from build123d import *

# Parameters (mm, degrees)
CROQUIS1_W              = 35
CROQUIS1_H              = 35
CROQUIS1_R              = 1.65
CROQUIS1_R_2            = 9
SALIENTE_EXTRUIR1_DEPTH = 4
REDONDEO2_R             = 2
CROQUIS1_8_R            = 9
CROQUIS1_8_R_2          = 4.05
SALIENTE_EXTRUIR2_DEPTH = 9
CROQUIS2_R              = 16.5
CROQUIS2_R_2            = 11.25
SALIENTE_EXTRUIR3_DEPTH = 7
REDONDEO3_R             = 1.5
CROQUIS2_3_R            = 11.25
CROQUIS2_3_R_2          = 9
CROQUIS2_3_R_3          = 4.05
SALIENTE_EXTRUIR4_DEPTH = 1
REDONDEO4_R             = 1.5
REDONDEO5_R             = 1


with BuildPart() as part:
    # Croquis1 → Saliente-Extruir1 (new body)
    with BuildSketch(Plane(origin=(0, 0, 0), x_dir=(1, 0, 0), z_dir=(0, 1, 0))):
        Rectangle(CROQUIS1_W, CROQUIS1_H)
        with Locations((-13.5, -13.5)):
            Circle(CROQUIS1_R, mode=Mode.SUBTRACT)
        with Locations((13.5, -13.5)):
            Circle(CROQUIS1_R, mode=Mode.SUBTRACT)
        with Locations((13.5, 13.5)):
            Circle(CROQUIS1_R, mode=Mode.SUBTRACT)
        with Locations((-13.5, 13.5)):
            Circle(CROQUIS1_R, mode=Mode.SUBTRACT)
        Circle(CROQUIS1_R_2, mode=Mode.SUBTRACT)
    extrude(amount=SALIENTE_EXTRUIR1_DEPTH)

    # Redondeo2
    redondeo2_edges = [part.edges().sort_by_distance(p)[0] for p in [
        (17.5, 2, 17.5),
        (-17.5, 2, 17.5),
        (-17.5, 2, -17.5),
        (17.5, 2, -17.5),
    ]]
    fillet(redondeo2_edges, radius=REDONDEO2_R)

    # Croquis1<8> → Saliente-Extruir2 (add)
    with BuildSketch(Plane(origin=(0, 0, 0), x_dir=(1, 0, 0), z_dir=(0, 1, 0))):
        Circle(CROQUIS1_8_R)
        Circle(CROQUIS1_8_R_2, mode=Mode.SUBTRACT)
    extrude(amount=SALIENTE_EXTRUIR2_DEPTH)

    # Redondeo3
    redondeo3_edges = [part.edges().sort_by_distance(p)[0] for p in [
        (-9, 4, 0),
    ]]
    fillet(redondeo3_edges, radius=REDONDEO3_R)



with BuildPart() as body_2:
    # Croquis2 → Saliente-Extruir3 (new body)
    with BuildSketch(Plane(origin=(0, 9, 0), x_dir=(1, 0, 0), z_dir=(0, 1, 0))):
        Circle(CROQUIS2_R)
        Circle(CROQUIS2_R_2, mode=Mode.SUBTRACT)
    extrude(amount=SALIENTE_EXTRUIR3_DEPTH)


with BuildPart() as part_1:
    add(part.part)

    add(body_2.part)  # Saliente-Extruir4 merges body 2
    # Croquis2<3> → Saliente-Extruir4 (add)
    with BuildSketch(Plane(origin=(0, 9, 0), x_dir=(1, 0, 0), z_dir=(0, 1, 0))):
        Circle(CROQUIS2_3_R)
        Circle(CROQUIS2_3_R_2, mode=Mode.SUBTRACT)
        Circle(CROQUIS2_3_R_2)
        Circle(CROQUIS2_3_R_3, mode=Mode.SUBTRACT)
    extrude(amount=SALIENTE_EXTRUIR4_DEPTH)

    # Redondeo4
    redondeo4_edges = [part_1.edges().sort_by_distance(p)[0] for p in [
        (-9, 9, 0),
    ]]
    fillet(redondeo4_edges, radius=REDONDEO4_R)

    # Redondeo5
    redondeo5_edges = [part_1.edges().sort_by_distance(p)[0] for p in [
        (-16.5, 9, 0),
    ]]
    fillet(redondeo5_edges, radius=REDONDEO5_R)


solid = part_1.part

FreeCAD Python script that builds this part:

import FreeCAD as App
import Part
import Sketcher


def edges_at(feature, points):
    """Names of the edges that pass closest to the given points."""
    edges = feature.Shape.Edges
    near = lambda p: min(range(len(edges)), key=lambda i: edges[i].distToShape(Part.Vertex(*p))[0])
    return sorted({f"Edge{near(p) + 1}" for p in points})


def add_polygon(sketch, points):
    """Adds a closed chain of lines whose ends are joined by coincident constraints."""
    first, n = sketch.GeometryCount, len(points)
    for a, b in zip(points, points[1:] + points[:1]):
        sketch.addGeometry(Part.LineSegment(App.Vector(*a, 0), App.Vector(*b, 0)), False)
    for i in range(n):
        sketch.addConstraint(Sketcher.Constraint("Coincident", first + i, 2, first + (i + 1) % n, 1))

doc = App.newDocument("Part")
body = doc.addObject("PartDesign::Body", "Body")

# Sketch on XZ plane
sketch1 = body.newObject("Sketcher::SketchObject", "Sketch")
sketch1.AttachmentSupport = (doc.getObject("XZ_Plane"), [""])
sketch1.MapMode = "FlatFace"
add_polygon(sketch1, [(-17.5, -17.5), (-17.5, 17.5), (17.5, 17.5), (17.5, -17.5)])  # lines 0-3
sketch1.addGeometry(Part.Circle(App.Vector(-13.5, 13.5, 0), App.Vector(0, 0, 1), 1.6), False)  # 4
sketch1.addGeometry(Part.Circle(App.Vector(0, 0, 0), App.Vector(0, 0, 1), 9), False)  # 5
sketch1.addGeometry(Part.Circle(App.Vector(13.5, 13.5, 0), App.Vector(0, 0, 1), 1.6), False)  # 6
sketch1.addGeometry(Part.Circle(App.Vector(-13.5, -13.5, 0), App.Vector(0, 0, 1), 1.6), False)  # 7
sketch1.addGeometry(Part.Circle(App.Vector(13.5, -13.5, 0), App.Vector(0, 0, 1), 1.6), False)  # 8
sketch1.addConstraint(Sketcher.Constraint("Vertical", 0))
sketch1.addConstraint(Sketcher.Constraint("Horizontal", 1))
sketch1.addConstraint(Sketcher.Constraint("Vertical", 2))
sketch1.addConstraint(Sketcher.Constraint("Horizontal", 3))
sketch1.addConstraint(Sketcher.Constraint("Coincident", 5, 3, -1, 1))
sketch1.addConstraint(Sketcher.Constraint("Equal", 4, 6))
sketch1.addConstraint(Sketcher.Constraint("Equal", 6, 7))
sketch1.addConstraint(Sketcher.Constraint("Equal", 7, 8))
sketch1.addConstraint(Sketcher.Constraint("Symmetric", 6, 3, 7, 3, -1, 1))
sketch1.addConstraint(Sketcher.Constraint("Symmetric", 4, 3, 8, 3, -1, 1))
sketch1.addConstraint(Sketcher.Constraint("Symmetric", 0, 2, 2, 2, -1, 1))
sketch1.addConstraint(Sketcher.Constraint("Symmetric", 4, 3, 6, 3, -2))
sketch1.addConstraint(Sketcher.Constraint("Equal", 3, 0))
sketch1.addConstraint(Sketcher.Constraint("Diameter", 5, 18.0))
sketch1.addConstraint(Sketcher.Constraint("Diameter", 4, 3.3))
sketch1.addConstraint(Sketcher.Constraint("DistanceX", 1, 1, 1, 2, 35.0))
sketch1.addConstraint(Sketcher.Constraint("DistanceX", 4, 3, 6, 3, 27.0))
sketch1.addConstraint(Sketcher.Constraint("DistanceY", 7, 3, 4, 3, 27.0))
pad1 = body.newObject("PartDesign::Pad", "Pad")
pad1.Profile = sketch1
pad1.Length = 4
pad1.Reversed = True
doc.recompute()

fillet = body.newObject("PartDesign::Fillet", "Fillet")
fillet.Base = (pad1, edges_at(pad1, [
    (17.5, 2, 17.5),
    (-17.5, 2, 17.5),
    (-17.5, 2, -17.5),
    (17.5, 2, -17.5),
]))
fillet.Radius = 2

# Sketch on XZ plane
sketch2 = body.newObject("Sketcher::SketchObject", "Sketch001")
sketch2.AttachmentSupport = (doc.getObject("XZ_Plane"), [""])
sketch2.MapMode = "FlatFace"
sketch2.addGeometry(Part.Circle(App.Vector(0, 0, 0), App.Vector(0, 0, 1), 9), False)
sketch2.addGeometry(Part.Circle(App.Vector(0, 0, 0), App.Vector(0, 0, 1), 4), False)
sketch2.addConstraint(Sketcher.Constraint("Coincident", 0, 3, -1, 1))
sketch2.addConstraint(Sketcher.Constraint("Coincident", 1, 3, -1, 1))
sketch2.addConstraint(Sketcher.Constraint("Diameter", 0, 18.0))
sketch2.addConstraint(Sketcher.Constraint("Diameter", 1, 8.1))
pad2 = body.newObject("PartDesign::Pad", "Pad001")
pad2.Profile = sketch2
pad2.Length = 9
pad2.Reversed = True
doc.recompute()

fillet2 = body.newObject("PartDesign::Fillet", "Fillet001")
fillet2.Base = (pad2, edges_at(pad2, [(-9, 4, 0)]))
fillet2.Radius = 1.5
body2 = doc.addObject("PartDesign::Body", "Body001")

# Sketch on XZ plane
sketch3 = body2.newObject("Sketcher::SketchObject", "Sketch002")
sketch3.AttachmentSupport = (doc.getObject("XZ_Plane001"), [""])
sketch3.MapMode = "FlatFace"
sketch3.AttachmentOffset = App.Placement(App.Vector(0, 0, -9), App.Rotation())
sketch3.addGeometry(Part.Circle(App.Vector(0, 0, 0), App.Vector(0, 0, 1), 16), False)
sketch3.addGeometry(Part.Circle(App.Vector(0, 0, 0), App.Vector(0, 0, 1), 11), False)
sketch3.addConstraint(Sketcher.Constraint("Coincident", 0, 3, -1, 1))
sketch3.addConstraint(Sketcher.Constraint("Coincident", 1, 3, -1, 1))
sketch3.addConstraint(Sketcher.Constraint("Diameter", 0, 33.0))
sketch3.addConstraint(Sketcher.Constraint("Diameter", 1, 22.5))
pad3 = body2.newObject("PartDesign::Pad", "Pad002")
pad3.Profile = sketch3
pad3.Length = 7
pad3.Reversed = True
body.AllowCompound = True
doc.recompute()

boolean = body.newObject("PartDesign::Boolean", "Boolean")
boolean.Type = "Fuse"
boolean.addObjects([body2])

# Sketch on XZ plane
sketch4 = body.newObject("Sketcher::SketchObject", "Sketch003")
sketch4.AttachmentSupport = (doc.getObject("XZ_Plane"), [""])
sketch4.MapMode = "FlatFace"
sketch4.AttachmentOffset = App.Placement(App.Vector(0, 0, -9), App.Rotation())
sketch4.addGeometry(Part.Circle(App.Vector(0, 0, 0), App.Vector(0, 0, 1), 11.2), False)
sketch4.addGeometry(Part.Circle(App.Vector(0, 0, 0), App.Vector(0, 0, 1), 4), False)
sketch4.addConstraint(Sketcher.Constraint("Coincident", 0, 3, -1, 1))
sketch4.addConstraint(Sketcher.Constraint("Coincident", 1, 3, -1, 1))
sketch4.addConstraint(Sketcher.Constraint("Diameter", 0, 22.5))
sketch4.addConstraint(Sketcher.Constraint("Diameter", 1, 8.1))
pad4 = body.newObject("PartDesign::Pad", "Pad003")
pad4.Profile = sketch4
pad4.Length = 1
pad4.Reversed = True
doc.recompute()

fillet3 = body.newObject("PartDesign::Fillet", "Fillet002")
fillet3.Base = (pad4, edges_at(pad4, [(-9, 9, 0)]))
fillet3.Radius = 1.5
doc.recompute()

fillet4 = body.newObject("PartDesign::Fillet", "Fillet003")
fillet4.Base = (fillet3, edges_at(fillet3, [(-16.5, 9, 0)]))
fillet4.Radius = 1

doc.recompute()
